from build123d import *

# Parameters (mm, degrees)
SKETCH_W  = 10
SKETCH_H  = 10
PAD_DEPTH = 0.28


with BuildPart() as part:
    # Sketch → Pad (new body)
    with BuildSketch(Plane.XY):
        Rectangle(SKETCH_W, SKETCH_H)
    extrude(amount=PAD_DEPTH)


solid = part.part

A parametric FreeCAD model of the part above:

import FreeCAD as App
import Part
import Sketcher


def add_polygon(sketch, points):
    """Adds a closed chain of lines whose ends are joined by coincident constraints."""
    first, n = sketch.GeometryCount, len(points)
    for a, b in zip(points, points[1:] + points[:1]):
        sketch.addGeometry(Part.LineSegment(App.Vector(*a, 0), App.Vector(*b, 0)), False)
    for i in range(n):
        sketch.addConstraint(Sketcher.Constraint("Coincident", first + i, 2, first + (i + 1) % n, 1))

doc = App.newDocument("Part")
body = doc.addObject("PartDesign::Body", "Body")

# Sketch on XY plane
sketch1 = body.newObject("Sketcher::SketchObject", "Sketch")
sketch1.AttachmentSupport = (doc.getObject("XY_Plane"), [""])
sketch1.MapMode = "FlatFace"
add_polygon(sketch1, [(-5, 5), (-5, -5), (5, -5), (5, 5)])  # lines 0-3
sketch1.addConstraint(Sketcher.Constraint("Vertical", 0))
sketch1.addConstraint(Sketcher.Constraint("Horizontal", 1))
sketch1.addConstraint(Sketcher.Constraint("Vertical", 2))
sketch1.addConstraint(Sketcher.Constraint("Horizontal", 3))
sketch1.addConstraint(Sketcher.Constraint("Symmetric", 0, 2, 2, 2, -1, 1))
sketch1.addConstraint(Sketcher.Constraint("Equal", 3, 0))
sketch1.addConstraint(Sketcher.Constraint("DistanceX", 1, 1, 1, 2, 10.0))
pad1 = body.newObject("PartDesign::Pad", "Pad")
pad1.Profile = sketch1
pad1.Length = 0.28

doc.recompute()
